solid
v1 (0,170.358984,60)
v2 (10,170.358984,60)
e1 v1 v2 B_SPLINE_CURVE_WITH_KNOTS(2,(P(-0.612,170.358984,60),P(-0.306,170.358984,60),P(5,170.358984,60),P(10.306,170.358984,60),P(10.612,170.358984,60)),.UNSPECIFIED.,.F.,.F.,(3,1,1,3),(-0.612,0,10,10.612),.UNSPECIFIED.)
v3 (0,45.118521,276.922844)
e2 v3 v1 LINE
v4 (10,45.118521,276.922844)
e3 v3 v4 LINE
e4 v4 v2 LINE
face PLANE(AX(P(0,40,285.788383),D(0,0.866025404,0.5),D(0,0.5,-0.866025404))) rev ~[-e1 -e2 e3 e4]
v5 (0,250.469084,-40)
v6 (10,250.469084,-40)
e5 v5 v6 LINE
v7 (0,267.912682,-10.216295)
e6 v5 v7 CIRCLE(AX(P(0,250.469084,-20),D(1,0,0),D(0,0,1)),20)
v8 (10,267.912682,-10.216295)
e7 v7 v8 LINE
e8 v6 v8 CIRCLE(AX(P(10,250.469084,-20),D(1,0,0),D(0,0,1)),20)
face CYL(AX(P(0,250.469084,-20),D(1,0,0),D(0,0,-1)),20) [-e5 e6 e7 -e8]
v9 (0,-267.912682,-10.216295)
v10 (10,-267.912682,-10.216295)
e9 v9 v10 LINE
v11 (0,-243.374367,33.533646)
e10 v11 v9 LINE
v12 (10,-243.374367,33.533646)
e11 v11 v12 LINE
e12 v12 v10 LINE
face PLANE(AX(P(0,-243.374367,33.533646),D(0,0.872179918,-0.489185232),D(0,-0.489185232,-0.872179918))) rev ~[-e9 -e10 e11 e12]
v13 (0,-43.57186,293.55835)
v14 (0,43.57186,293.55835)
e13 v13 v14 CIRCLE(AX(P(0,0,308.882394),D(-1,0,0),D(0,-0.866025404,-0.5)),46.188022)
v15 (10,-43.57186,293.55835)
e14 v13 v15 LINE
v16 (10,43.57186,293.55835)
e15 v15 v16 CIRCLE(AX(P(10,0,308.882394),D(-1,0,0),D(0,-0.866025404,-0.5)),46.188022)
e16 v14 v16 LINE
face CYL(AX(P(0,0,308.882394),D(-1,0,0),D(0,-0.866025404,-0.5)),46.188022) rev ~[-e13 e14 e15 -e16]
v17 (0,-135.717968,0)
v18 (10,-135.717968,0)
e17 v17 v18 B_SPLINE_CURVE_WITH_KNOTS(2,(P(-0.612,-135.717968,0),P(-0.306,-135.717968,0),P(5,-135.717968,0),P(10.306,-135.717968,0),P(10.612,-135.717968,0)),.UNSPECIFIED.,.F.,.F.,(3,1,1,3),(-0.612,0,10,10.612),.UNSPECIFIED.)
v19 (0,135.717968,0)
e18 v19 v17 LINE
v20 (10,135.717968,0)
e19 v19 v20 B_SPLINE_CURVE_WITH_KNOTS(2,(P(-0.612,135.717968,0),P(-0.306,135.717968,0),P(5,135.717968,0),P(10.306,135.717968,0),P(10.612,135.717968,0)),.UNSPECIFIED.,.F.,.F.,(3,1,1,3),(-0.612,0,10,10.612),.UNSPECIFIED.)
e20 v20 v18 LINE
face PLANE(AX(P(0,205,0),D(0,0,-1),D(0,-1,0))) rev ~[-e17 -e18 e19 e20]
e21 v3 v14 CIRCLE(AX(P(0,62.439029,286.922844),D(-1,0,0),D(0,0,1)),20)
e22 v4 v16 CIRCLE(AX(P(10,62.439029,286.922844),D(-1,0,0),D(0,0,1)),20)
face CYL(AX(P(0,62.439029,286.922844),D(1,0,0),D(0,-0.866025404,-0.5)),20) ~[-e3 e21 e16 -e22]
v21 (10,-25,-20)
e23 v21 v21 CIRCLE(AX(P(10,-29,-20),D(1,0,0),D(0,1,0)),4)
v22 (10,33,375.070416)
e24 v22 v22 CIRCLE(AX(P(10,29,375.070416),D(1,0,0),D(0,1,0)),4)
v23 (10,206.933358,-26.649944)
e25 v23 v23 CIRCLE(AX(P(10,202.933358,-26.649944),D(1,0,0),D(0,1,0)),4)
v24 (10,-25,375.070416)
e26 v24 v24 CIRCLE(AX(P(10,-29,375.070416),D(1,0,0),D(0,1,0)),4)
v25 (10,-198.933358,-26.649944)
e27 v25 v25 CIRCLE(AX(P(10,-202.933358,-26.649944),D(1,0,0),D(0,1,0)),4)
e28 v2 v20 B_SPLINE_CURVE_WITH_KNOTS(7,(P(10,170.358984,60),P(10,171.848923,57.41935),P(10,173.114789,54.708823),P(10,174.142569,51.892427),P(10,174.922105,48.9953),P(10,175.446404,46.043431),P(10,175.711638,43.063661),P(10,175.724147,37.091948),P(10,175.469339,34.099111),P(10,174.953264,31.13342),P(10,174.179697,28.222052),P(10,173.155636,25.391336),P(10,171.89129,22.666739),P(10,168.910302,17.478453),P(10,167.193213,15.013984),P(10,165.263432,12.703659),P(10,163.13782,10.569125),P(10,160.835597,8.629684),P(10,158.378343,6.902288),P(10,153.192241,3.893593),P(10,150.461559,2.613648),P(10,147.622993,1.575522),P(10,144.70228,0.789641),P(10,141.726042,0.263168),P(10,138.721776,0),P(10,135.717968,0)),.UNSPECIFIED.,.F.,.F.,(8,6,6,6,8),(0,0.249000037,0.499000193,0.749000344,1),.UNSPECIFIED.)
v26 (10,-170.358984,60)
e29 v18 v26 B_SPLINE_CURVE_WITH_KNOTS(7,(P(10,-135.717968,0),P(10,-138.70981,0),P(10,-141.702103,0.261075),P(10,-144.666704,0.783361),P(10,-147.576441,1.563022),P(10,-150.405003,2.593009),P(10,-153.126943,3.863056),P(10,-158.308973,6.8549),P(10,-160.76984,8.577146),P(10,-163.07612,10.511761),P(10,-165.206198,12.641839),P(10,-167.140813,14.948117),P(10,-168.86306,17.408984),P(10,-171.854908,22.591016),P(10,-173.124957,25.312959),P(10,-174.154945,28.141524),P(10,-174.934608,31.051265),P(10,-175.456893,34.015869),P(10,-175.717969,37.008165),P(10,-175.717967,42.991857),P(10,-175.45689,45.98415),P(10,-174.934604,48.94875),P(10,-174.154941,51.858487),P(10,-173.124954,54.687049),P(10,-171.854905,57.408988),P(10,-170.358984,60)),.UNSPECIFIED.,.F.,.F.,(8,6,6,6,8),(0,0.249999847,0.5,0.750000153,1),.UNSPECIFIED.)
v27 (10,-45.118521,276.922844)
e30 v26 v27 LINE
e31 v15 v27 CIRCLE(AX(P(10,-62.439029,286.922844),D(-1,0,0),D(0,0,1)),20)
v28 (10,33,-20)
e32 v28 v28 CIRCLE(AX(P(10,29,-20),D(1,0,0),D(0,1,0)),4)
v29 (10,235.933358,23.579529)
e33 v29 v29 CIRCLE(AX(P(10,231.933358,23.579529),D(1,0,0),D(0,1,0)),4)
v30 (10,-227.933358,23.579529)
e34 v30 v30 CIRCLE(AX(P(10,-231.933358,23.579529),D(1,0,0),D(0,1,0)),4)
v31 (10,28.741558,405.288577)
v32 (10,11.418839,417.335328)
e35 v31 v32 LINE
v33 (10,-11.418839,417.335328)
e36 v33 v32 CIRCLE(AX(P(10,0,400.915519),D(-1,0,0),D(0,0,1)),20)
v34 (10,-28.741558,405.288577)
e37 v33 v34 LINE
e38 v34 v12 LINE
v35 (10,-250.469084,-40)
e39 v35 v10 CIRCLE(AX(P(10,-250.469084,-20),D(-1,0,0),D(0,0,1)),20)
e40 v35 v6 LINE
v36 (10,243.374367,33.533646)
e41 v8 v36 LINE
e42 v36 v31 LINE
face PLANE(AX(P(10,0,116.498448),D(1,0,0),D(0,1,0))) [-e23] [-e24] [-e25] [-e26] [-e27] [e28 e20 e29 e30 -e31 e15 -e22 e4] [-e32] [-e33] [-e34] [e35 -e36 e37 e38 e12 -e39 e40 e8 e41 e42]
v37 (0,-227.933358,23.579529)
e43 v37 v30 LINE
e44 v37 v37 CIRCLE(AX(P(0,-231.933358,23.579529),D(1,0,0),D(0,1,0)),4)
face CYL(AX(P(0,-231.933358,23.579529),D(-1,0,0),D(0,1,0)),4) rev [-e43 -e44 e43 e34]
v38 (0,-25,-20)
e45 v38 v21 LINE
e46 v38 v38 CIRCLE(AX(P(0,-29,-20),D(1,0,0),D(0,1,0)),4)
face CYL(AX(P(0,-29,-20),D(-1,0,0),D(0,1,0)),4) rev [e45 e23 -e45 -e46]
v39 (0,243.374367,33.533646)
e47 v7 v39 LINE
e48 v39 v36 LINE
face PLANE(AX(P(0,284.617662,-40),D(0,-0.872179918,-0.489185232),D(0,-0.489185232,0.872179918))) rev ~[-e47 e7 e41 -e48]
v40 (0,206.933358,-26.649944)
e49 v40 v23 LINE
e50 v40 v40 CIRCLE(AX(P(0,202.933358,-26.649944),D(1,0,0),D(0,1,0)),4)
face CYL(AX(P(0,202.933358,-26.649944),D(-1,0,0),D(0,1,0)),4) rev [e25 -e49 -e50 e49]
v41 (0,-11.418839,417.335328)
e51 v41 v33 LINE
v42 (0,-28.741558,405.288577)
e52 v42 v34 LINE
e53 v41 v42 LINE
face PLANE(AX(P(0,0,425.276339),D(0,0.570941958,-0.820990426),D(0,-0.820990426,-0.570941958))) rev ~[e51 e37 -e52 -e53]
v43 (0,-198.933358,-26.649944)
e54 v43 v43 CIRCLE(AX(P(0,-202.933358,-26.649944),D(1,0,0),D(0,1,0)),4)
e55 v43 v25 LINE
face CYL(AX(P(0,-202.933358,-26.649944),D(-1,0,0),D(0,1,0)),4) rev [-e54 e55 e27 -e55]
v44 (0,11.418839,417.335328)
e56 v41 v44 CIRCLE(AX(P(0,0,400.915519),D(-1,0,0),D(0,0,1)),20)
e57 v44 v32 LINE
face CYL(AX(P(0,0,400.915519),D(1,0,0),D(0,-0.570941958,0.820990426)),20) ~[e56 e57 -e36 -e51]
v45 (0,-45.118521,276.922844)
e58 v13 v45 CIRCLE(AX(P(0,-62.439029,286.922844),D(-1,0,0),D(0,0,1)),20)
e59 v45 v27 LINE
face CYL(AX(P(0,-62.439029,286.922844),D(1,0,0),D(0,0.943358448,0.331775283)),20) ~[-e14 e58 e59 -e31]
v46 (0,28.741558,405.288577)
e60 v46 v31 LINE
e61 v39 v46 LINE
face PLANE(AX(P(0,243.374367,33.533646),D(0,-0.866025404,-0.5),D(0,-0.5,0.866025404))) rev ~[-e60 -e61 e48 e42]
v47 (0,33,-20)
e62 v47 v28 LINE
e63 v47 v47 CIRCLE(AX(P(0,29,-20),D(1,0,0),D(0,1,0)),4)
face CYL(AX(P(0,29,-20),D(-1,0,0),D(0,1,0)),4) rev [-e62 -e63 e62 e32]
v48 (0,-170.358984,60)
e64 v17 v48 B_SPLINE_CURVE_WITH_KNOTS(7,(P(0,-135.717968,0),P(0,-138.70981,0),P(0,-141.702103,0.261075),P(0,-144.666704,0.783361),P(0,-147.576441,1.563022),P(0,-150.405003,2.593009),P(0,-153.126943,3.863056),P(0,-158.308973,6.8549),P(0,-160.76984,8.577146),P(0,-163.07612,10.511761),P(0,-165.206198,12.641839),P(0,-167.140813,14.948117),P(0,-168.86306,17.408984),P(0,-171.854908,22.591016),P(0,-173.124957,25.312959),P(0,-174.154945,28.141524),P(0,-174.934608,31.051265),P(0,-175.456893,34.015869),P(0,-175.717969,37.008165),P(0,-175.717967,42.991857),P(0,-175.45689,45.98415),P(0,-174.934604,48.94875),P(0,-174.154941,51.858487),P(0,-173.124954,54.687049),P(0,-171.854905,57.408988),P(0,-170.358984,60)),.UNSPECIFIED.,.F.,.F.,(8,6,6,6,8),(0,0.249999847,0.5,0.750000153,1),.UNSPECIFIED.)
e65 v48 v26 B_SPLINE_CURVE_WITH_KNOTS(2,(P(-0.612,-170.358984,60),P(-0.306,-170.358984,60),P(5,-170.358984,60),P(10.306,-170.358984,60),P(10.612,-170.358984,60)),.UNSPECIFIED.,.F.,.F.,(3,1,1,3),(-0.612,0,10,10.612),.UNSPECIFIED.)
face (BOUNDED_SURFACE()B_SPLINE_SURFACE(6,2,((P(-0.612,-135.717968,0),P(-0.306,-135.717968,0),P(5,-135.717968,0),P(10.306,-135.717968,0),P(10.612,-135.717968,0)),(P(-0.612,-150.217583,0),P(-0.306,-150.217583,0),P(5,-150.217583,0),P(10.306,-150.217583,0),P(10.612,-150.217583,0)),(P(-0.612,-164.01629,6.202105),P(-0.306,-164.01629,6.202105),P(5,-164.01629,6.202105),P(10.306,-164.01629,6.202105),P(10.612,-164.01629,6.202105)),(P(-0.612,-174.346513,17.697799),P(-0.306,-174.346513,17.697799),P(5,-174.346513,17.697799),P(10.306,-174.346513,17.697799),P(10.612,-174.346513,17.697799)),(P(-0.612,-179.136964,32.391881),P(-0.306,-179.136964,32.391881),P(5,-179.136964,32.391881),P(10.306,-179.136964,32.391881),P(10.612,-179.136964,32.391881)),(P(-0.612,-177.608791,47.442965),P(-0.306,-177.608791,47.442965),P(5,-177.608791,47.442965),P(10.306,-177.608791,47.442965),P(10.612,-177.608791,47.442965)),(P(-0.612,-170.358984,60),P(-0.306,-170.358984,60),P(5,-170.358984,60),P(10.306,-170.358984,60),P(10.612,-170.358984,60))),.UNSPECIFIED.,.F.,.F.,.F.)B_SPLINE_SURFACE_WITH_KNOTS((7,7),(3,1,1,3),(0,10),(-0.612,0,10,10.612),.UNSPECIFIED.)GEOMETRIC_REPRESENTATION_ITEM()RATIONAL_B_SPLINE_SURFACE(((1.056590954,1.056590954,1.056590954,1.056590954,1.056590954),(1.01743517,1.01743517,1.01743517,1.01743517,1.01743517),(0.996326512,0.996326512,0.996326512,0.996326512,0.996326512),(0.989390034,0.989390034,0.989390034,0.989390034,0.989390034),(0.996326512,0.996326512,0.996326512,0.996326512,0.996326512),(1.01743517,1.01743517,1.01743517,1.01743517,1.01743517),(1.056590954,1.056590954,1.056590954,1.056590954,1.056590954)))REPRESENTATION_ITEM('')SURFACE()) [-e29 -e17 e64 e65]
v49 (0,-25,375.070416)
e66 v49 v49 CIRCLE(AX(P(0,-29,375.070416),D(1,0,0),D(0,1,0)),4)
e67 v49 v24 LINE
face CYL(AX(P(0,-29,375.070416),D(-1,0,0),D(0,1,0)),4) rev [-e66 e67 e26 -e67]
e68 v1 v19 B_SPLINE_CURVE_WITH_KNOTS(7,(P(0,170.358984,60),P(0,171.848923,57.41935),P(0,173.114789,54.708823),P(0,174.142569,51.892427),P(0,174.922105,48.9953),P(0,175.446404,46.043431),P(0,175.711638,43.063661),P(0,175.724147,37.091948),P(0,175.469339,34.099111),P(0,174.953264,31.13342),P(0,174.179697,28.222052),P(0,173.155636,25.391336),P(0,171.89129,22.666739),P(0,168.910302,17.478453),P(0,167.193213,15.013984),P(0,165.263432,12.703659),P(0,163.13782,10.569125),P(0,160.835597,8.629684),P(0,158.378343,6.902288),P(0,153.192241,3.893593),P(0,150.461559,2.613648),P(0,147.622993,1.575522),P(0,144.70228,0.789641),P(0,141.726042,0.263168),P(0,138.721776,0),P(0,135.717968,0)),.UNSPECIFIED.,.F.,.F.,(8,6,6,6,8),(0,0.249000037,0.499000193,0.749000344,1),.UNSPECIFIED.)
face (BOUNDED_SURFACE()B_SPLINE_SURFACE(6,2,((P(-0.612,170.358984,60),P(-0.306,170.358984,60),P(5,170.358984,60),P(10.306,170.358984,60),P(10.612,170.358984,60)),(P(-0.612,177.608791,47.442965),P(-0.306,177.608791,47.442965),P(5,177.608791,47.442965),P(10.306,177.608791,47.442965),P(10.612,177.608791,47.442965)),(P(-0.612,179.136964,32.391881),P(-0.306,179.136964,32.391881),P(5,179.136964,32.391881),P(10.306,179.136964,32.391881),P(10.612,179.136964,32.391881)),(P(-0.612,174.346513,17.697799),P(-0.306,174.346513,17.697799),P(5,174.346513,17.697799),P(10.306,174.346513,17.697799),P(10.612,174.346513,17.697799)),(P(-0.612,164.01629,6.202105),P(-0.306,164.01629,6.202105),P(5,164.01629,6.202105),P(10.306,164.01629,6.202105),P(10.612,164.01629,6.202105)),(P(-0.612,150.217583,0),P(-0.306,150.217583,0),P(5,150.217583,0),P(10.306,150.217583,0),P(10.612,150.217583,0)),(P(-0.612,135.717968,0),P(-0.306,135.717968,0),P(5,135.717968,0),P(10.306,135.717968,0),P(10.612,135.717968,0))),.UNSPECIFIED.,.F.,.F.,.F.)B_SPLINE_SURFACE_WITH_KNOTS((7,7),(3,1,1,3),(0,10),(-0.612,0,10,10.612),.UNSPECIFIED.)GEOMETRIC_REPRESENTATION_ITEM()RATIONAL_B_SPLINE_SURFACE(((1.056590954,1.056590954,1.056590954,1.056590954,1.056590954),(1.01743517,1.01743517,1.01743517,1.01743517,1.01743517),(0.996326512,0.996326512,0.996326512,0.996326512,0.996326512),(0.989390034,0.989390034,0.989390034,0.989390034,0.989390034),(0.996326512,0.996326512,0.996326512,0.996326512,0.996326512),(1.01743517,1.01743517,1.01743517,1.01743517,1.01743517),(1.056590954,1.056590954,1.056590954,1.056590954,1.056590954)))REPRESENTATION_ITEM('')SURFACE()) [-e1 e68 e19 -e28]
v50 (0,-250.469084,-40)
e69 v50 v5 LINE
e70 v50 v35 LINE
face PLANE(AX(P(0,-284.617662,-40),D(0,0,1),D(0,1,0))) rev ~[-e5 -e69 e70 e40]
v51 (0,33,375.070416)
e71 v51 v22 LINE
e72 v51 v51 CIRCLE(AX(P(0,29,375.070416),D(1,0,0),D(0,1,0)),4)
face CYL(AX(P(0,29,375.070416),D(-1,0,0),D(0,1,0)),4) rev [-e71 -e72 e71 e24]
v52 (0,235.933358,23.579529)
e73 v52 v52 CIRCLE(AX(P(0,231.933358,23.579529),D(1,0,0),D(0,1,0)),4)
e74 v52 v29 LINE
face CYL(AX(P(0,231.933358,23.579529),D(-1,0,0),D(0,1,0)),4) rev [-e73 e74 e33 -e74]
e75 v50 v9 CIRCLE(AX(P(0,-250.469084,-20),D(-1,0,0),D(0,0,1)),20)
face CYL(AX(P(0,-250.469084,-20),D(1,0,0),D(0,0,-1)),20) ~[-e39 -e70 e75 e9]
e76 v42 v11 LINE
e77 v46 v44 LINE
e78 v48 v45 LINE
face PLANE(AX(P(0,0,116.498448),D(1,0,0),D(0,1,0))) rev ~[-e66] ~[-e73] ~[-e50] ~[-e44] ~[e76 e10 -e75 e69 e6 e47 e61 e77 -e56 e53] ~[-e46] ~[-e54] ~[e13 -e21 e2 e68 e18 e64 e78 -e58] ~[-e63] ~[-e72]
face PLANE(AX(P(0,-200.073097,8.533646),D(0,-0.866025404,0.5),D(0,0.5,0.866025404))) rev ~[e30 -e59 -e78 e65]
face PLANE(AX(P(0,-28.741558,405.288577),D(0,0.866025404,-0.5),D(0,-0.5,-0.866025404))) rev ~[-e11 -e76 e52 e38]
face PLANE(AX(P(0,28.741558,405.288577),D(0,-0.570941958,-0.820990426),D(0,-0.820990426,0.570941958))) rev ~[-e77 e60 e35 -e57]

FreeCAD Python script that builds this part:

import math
import FreeCAD as App
import Part
import Sketcher

V = App.Vector
Q = App.Units.Quantity


def edges_at(feature, points):
    """Names of the edges that pass closest to the given points."""
    edges = feature.Shape.Edges
    near = lambda p: min(range(len(edges)), key=lambda i: edges[i].distToShape(Part.Vertex(*p))[0])
    return sorted({f"Edge{near(p) + 1}" for p in points})

doc = App.newDocument("Part")
body = doc.addObject("PartDesign::Body", "Body")

# Sketch on YZ plane
sketch1 = body.newObject("Sketcher::SketchObject", "Sketch")
sketch1.AttachmentSupport = (doc.getObject("YZ_Plane"), [""])
sketch1.MapMode = "FlatFace"
sketch1.addGeometry([
    Part.LineSegment(V(-284.6, -40, 0), V(284.6, -40, 0)),  # 0
    Part.LineSegment(V(284.6, -40, 0), V(243.4, 33.5, 0)),  # 1
    Part.LineSegment(V(243.4, 33.5, 0), V(28.7, 405.3, 0)),  # 2
    Part.LineSegment(V(28.7, 405.3, 0), V(0, 425.3, 0)),  # 3
    Part.LineSegment(V(0, 425.3, 0), V(-28.7, 405.3, 0)),  # 4
    Part.LineSegment(V(-28.7, 405.3, 0), V(-243.4, 33.5, 0)),  # 5
    Part.LineSegment(V(-243.4, 33.5, 0), V(-284.6, -40, 0)),  # 6
    Part.Circle(V(-202.9, -26.6, 0), V(0, 0, 1), 4),  # 7
    Part.Circle(V(-231.9, 23.6, 0), V(0, 0, 1), 4),  # 8
    Part.Circle(V(-29, -20, 0), V(0, 0, 1), 4),  # 9
    Part.Circle(V(29, -20, 0), V(0, 0, 1), 4),  # 10
    Part.Circle(V(202.9, -26.6, 0), V(0, 0, 1), 4),  # 11
    Part.Circle(V(231.9, 23.6, 0), V(0, 0, 1), 4),  # 12
    Part.Circle(V(-29, 375.1, 0), V(0, 0, 1), 4),  # 13
    Part.LineSegment(V(200.1, 8.5, 0), V(205, 0, 0)),  # 14
    Part.LineSegment(V(205, 0, 0), V(-205, 0, 0)),  # 15
    Part.LineSegment(V(-205, 0, 0), V(-200.1, 8.5, 0)),  # 16
    Part.LineSegment(V(-200.1, 8.5, 0), V(-40, 285.8, 0)),  # 17
    Part.ArcOfCircle(Part.Circle(V(0, 308.9, 0), V(0, 0, 1), 46.2), math.radians(-30), math.radians(210)),  # 18
    Part.LineSegment(V(40, 285.8, 0), V(200.1, 8.5, 0)),  # 19
    Part.Circle(V(29, 375.1, 0), V(0, 0, 1), 4),  # 20
], False)
sketch1.addConstraint([
    Sketcher.Constraint("Coincident", 0, 2, 1, 1),
    Sketcher.Constraint("Coincident", 1, 2, 2, 1),
    Sketcher.Constraint("Coincident", 2, 2, 3, 1),
    Sketcher.Constraint("Coincident", 3, 2, 4, 1),
    Sketcher.Constraint("Coincident", 4, 2, 5, 1),
    Sketcher.Constraint("Coincident", 5, 2, 6, 1),
    Sketcher.Constraint("Coincident", 6, 2, 0, 1),
    Sketcher.Constraint("Coincident", 14, 2, 15, 1),
    Sketcher.Constraint("Coincident", 15, 2, 16, 1),
    Sketcher.Constraint("Coincident", 16, 2, 17, 1),
    Sketcher.Constraint("Coincident", 17, 2, 18, 2),
    Sketcher.Constraint("Coincident", 18, 1, 19, 1),
    Sketcher.Constraint("Coincident", 19, 2, 14, 1),
    Sketcher.Constraint("Horizontal", 0),
    Sketcher.Constraint("Horizontal", 15),
    Sketcher.Constraint("Equal", 7, 8),
    Sketcher.Constraint("Equal", 8, 9),
    Sketcher.Constraint("Equal", 9, 10),
    Sketcher.Constraint("Equal", 10, 11),
    Sketcher.Constraint("Equal", 11, 12),
    Sketcher.Constraint("Equal", 12, 13),
    Sketcher.Constraint("Equal", 13, 20),
    Sketcher.Constraint("Symmetric", 14, 2, 15, 2, -1, 1),
    Sketcher.Constraint("Symmetric", 9, 3, 10, 3, -2),
    Sketcher.Constraint("Symmetric", 7, 3, 11, 3, -2),
    Sketcher.Constraint("Symmetric", 8, 3, 12, 3, -2),
    Sketcher.Constraint("Symmetric", 13, 3, 20, 3, -2),
    Sketcher.Constraint("Symmetric", 2, 2, 4, 2, -2),
    Sketcher.Constraint("Symmetric", 1, 2, 5, 2, -2),
    Sketcher.Constraint("Symmetric", 17, 2, 18, 1, -2),
    Sketcher.Constraint("Symmetric", 16, 2, 19, 2, -2),
    Sketcher.Constraint("PointOnObject", 3, 2, -2),
    Sketcher.Constraint("Parallel", 2, 14),
    Sketcher.Constraint("Parallel", 16, 17),
    Sketcher.Constraint("Vertical", 9, 3, 13, 3),
    Sketcher.Constraint("Equal", 1, 6),
    Sketcher.Constraint("Diameter", 7, 8.0),
    Sketcher.Constraint("DistanceX", 15, 2, 15, 1, 410.0),
    Sketcher.Constraint("Angle", 2, Q("120 deg")),
    Sketcher.Constraint("DistanceX", 9, 3, -1, 1, 29.0),
    Sketcher.Constraint("DistanceY", 9, 3, -1, 1, 20.0),
    Sketcher.Constraint("DistanceY", 0, 2, -1, 1, 40.0),
    Sketcher.Constraint("DistanceX", 17, 2, -1, 1, 40.0),
    Sketcher.Constraint("DistanceX", 8, 3, 7, 3, 29.0),
    Sketcher.Constraint("DistanceY", 16, 2, 5, 2, 25.0),
    Sketcher.Constraint("Radius", 18, 46.188022),
    Sketcher.Constraint("Distance", 1, 84.31018),
    Sketcher.Constraint("Distance", 2, 429.265619),
    Sketcher.Constraint("DistanceX", 0, 1, 0, 2, 569.235325),
    Sketcher.Constraint("DistanceX", 7, 3, -1, 1, 202.933358),
    Sketcher.Constraint("DistanceY", -1, 1, 8, 3, 23.579529),
    Sketcher.Constraint("DistanceY", -1, 1, 3, 2, 425.276339),
    Sketcher.Constraint("DistanceY", 7, 3, 13, 3, 401.72036),
    Sketcher.Constraint("DistanceY", 18, 3, 13, 3, 66.188022),
    Sketcher.Constraint("DistanceX", 12, 3, 1, 2, 11.441009),
])
pad1 = body.newObject("PartDesign::Pad", "Pad")
pad1.Profile = sketch1
pad1.Length = 10
doc.recompute()

fillet = body.newObject("PartDesign::Fillet", "Fillet")
fillet.Base = (pad1, edges_at(pad1, [
    (5, -284.618, -40),
    (5, 284.618, -40),
    (5, 0, 425.276),
    (5, -40, 285.788),
    (5, 40, 285.788),
]))
fillet.Radius = 20
doc.recompute()

fillet2 = body.newObject("PartDesign::Fillet", "Fillet001")
fillet2.Base = (fillet, edges_at(fillet, [(5, 205, 0), (5, -205, 0)]))
fillet2.Radius = 40

doc.recompute()
